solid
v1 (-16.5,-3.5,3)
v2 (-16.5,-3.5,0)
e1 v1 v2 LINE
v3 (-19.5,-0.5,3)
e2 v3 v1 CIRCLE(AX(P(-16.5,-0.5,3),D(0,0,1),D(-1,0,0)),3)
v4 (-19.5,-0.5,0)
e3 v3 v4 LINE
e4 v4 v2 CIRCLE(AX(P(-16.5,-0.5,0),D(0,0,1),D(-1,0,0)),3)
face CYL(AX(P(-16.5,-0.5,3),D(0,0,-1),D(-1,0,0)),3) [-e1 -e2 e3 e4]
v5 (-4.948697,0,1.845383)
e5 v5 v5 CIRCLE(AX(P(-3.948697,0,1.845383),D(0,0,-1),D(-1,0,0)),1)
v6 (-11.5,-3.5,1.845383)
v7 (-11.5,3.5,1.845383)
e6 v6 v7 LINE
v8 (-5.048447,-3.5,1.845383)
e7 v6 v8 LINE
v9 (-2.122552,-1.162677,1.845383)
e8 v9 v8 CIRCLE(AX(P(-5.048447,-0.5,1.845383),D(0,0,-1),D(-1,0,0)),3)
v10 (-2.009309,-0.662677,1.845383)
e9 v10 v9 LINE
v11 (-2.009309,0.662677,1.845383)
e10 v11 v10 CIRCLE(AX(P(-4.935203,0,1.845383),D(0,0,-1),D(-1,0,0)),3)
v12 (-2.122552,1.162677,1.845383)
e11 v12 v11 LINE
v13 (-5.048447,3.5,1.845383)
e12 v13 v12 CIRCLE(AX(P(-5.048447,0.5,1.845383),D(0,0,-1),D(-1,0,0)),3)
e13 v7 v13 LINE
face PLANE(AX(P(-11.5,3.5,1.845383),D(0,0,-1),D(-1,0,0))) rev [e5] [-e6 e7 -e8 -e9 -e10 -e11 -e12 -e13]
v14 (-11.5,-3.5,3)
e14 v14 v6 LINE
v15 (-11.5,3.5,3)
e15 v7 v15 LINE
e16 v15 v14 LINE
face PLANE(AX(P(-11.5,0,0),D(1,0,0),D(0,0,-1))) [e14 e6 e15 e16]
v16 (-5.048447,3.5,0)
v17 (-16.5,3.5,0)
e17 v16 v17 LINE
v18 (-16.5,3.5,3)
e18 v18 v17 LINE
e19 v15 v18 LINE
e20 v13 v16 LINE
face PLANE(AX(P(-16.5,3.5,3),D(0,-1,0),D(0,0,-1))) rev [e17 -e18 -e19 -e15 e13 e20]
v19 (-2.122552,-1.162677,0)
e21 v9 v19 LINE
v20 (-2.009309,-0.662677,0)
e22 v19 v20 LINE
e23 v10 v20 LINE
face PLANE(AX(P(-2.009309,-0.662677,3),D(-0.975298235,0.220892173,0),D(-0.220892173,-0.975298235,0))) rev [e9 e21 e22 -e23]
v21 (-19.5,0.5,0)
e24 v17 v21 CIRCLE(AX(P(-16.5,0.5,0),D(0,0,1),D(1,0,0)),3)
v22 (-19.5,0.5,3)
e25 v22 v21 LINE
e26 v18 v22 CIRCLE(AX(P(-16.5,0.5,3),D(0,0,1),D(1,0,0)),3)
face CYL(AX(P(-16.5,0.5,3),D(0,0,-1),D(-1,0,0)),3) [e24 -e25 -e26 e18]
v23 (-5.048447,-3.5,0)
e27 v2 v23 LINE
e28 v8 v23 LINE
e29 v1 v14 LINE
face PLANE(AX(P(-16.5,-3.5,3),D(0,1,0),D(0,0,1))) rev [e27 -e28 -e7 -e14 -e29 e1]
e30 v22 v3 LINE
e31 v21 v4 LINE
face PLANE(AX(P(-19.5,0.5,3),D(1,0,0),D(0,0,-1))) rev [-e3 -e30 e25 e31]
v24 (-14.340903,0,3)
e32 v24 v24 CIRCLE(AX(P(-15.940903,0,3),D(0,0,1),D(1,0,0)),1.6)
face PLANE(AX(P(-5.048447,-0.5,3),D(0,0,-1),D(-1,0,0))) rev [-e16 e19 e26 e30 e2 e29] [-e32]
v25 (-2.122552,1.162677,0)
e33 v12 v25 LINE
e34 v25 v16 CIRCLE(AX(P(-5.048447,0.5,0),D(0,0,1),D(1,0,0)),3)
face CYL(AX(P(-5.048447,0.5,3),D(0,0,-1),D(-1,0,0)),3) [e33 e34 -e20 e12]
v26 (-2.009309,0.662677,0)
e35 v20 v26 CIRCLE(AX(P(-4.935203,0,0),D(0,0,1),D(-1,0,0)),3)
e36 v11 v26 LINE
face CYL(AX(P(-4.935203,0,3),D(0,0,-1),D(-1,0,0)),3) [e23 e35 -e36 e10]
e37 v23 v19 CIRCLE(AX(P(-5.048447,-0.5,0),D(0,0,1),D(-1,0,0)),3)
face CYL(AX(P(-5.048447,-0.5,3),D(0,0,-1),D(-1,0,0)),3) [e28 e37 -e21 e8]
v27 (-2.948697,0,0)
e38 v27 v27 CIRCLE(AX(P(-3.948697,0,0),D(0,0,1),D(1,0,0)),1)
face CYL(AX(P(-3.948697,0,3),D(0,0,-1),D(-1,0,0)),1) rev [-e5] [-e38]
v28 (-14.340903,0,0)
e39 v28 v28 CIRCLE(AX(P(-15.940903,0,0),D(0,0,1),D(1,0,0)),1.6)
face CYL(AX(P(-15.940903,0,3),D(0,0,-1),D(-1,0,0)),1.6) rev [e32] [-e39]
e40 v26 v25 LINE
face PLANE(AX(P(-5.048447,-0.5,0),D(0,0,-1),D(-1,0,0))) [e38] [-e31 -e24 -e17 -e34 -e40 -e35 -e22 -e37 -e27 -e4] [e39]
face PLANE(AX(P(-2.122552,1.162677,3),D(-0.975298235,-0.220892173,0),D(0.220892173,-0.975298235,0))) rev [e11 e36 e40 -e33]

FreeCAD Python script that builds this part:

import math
import FreeCAD as App
import Part
import Sketcher
from FreeCAD import Vector

doc = App.newDocument("Part")
body = doc.addObject("PartDesign::Body", "Body")

# Sketch on XY plane
sketch1 = doc.addObject("Sketcher::SketchObject", "Sketch")
body.addObject(sketch1)
sketch1.AttachmentSupport = (doc.XY_Plane, [""])
sketch1.MapMode = "FlatFace"
sketch1.addGeometry(Part.LineSegment(Vector(-19.5, 0.5, 0), Vector(-19.5, -0.5, 0)), False)
sketch1.addGeometry(Part.ArcOfCircle(Part.Circle(Vector(-16.5, -0.5, 0), Vector(0, 0, 1), 3), math.radians(180), math.radians(270)), False)
sketch1.addGeometry(Part.LineSegment(Vector(-16.5, -3.5, 0), Vector(-5, -3.5, 0)), False)
sketch1.addGeometry(Part.ArcOfCircle(Part.Circle(Vector(-5, -0.5, 0), Vector(0, 0, 1), 3), math.radians(-90), math.radians(-13)), False)
sketch1.addGeometry(Part.LineSegment(Vector(-2.1, -1.2, 0), Vector(-2, -0.7, 0)), False)
sketch1.addGeometry(Part.ArcOfCircle(Part.Circle(Vector(-4.9, 0, 0), Vector(0, 0, 1), 3), math.radians(-13), math.radians(13)), False)
sketch1.addGeometry(Part.LineSegment(Vector(-2, 0.7, 0), Vector(-2.1, 1.2, 0)), False)
sketch1.addGeometry(Part.ArcOfCircle(Part.Circle(Vector(-5, 0.5, 0), Vector(0, 0, 1), 3), math.radians(13), math.radians(90)), False)
sketch1.addGeometry(Part.LineSegment(Vector(-5, 3.5, 0), Vector(-16.5, 3.5, 0)), False)
sketch1.addGeometry(Part.ArcOfCircle(Part.Circle(Vector(-16.5, 0.5, 0), Vector(0, 0, 1), 3), math.radians(90), math.radians(180)), False)
sketch1.addGeometry(Part.Circle(Vector(-15.9, 0, 0), Vector(0, 0, 1), 1.6), False)
sketch1.addGeometry(Part.Circle(Vector(-3.9, 0, 0), Vector(0, 0, 1), 1), False)
sketch1.addConstraint(Sketcher.Constraint("Tangent", 0, 2, 1, 1))
sketch1.addConstraint(Sketcher.Constraint("Tangent", 1, 2, 2, 1))
sketch1.addConstraint(Sketcher.Constraint("Tangent", 2, 2, 3, 1))
sketch1.addConstraint(Sketcher.Constraint("Tangent", 3, 2, 4, 1))
sketch1.addConstraint(Sketcher.Constraint("Tangent", 4, 2, 5, 1))
sketch1.addConstraint(Sketcher.Constraint("Tangent", 5, 2, 6, 1))
sketch1.addConstraint(Sketcher.Constraint("Tangent", 6, 2, 7, 1))
sketch1.addConstraint(Sketcher.Constraint("Tangent", 7, 2, 8, 1))
sketch1.addConstraint(Sketcher.Constraint("Tangent", 8, 2, 9, 1))
sketch1.addConstraint(Sketcher.Constraint("Tangent", 9, 2, 0, 1))
sketch1.addConstraint(Sketcher.Constraint("Vertical", 0))
sketch1.addConstraint(Sketcher.Constraint("Horizontal", 2))
sketch1.addConstraint(Sketcher.Constraint("Horizontal", 8))
sketch1.addConstraint(Sketcher.Constraint("Equal", 1, 3))
sketch1.addConstraint(Sketcher.Constraint("Equal", 3, 5))
sketch1.addConstraint(Sketcher.Constraint("Equal", 5, 7))
sketch1.addConstraint(Sketcher.Constraint("Equal", 7, 9))
sketch1.addConstraint(Sketcher.Constraint("Symmetric", 3, 3, 7, 3, -1))
sketch1.addConstraint(Sketcher.Constraint("PointOnObject", 5, 3, -1))
sketch1.addConstraint(Sketcher.Constraint("PointOnObject", 10, 3, -1))
sketch1.addConstraint(Sketcher.Constraint("PointOnObject", 11, 3, -1))
sketch1.addConstraint(Sketcher.Constraint("Diameter", 11, 2.0))
sketch1.addConstraint(Sketcher.Constraint("Radius", 1, 3.0))
sketch1.addConstraint(Sketcher.Constraint("Diameter", 10, 3.2))
sketch1.addConstraint(Sketcher.Constraint("DistanceY", 0, 2, 0, 1, 1.0))
sketch1.addConstraint(Sketcher.Constraint("DistanceX", 1, 3, -1, 1, 16.5))
sketch1.addConstraint(Sketcher.Constraint("DistanceX", 10, 3, 5, 3, 11.005699))
sketch1.addConstraint(Sketcher.Constraint("DistanceX", 2, 1, 2, 2, 11.451553))
sketch1.addConstraint(Sketcher.Constraint("DistanceX", 4, 2, -1, 1, 2.009309))
sketch1.addConstraint(Sketcher.Constraint("DistanceX", 3, 3, 11, 3, 1.09975))
pad1 = doc.addObject("PartDesign::Pad", "Pad")
body.addObject(pad1)
pad1.Profile = sketch1
pad1.Length = 3

# Sketch on YZ plane
sketch2 = doc.addObject("Sketcher::SketchObject", "Sketch001")
body.addObject(sketch2)
sketch2.AttachmentSupport = (doc.YZ_Plane, [""])
sketch2.MapMode = "FlatFace"
sketch2.addGeometry(Part.LineSegment(Vector(3.5, 3, 0), Vector(-3.5, 3, 0)), False)
sketch2.addGeometry(Part.LineSegment(Vector(-3.5, 3, 0), Vector(-3.5, 1.8, 0)), False)
sketch2.addGeometry(Part.LineSegment(Vector(-3.5, 1.8, 0), Vector(3.5, 1.8, 0)), False)
sketch2.addGeometry(Part.LineSegment(Vector(3.5, 1.8, 0), Vector(3.5, 3, 0)), False)
sketch2.addConstraint(Sketcher.Constraint("Coincident", 0, 2, 1, 1))
sketch2.addConstraint(Sketcher.Constraint("Coincident", 1, 2, 2, 1))
sketch2.addConstraint(Sketcher.Constraint("Coincident", 2, 2, 3, 1))
sketch2.addConstraint(Sketcher.Constraint("Coincident", 3, 2, 0, 1))
sketch2.addConstraint(Sketcher.Constraint("Horizontal", 0))
sketch2.addConstraint(Sketcher.Constraint("Vertical", 1))
sketch2.addConstraint(Sketcher.Constraint("Horizontal", 2))
sketch2.addConstraint(Sketcher.Constraint("Vertical", 3))
sketch2.addConstraint(Sketcher.Constraint("DistanceX", 0, 2, 0, 1, 7.0))
sketch2.addConstraint(Sketcher.Constraint("DistanceY", -1, 1, 0, 2, 3.0))
sketch2.addConstraint(Sketcher.Constraint("DistanceX", 0, 2, -1, 1, 3.5))
sketch2.addConstraint(Sketcher.Constraint("DistanceY", 1, 2, 1, 1, 1.154617))
pocket1 = doc.addObject("PartDesign::Pocket", "Pocket")
body.addObject(pocket1)
pocket1.Profile = sketch2
pocket1.Length = 23
pocket1.Midplane = True

doc.recompute()
